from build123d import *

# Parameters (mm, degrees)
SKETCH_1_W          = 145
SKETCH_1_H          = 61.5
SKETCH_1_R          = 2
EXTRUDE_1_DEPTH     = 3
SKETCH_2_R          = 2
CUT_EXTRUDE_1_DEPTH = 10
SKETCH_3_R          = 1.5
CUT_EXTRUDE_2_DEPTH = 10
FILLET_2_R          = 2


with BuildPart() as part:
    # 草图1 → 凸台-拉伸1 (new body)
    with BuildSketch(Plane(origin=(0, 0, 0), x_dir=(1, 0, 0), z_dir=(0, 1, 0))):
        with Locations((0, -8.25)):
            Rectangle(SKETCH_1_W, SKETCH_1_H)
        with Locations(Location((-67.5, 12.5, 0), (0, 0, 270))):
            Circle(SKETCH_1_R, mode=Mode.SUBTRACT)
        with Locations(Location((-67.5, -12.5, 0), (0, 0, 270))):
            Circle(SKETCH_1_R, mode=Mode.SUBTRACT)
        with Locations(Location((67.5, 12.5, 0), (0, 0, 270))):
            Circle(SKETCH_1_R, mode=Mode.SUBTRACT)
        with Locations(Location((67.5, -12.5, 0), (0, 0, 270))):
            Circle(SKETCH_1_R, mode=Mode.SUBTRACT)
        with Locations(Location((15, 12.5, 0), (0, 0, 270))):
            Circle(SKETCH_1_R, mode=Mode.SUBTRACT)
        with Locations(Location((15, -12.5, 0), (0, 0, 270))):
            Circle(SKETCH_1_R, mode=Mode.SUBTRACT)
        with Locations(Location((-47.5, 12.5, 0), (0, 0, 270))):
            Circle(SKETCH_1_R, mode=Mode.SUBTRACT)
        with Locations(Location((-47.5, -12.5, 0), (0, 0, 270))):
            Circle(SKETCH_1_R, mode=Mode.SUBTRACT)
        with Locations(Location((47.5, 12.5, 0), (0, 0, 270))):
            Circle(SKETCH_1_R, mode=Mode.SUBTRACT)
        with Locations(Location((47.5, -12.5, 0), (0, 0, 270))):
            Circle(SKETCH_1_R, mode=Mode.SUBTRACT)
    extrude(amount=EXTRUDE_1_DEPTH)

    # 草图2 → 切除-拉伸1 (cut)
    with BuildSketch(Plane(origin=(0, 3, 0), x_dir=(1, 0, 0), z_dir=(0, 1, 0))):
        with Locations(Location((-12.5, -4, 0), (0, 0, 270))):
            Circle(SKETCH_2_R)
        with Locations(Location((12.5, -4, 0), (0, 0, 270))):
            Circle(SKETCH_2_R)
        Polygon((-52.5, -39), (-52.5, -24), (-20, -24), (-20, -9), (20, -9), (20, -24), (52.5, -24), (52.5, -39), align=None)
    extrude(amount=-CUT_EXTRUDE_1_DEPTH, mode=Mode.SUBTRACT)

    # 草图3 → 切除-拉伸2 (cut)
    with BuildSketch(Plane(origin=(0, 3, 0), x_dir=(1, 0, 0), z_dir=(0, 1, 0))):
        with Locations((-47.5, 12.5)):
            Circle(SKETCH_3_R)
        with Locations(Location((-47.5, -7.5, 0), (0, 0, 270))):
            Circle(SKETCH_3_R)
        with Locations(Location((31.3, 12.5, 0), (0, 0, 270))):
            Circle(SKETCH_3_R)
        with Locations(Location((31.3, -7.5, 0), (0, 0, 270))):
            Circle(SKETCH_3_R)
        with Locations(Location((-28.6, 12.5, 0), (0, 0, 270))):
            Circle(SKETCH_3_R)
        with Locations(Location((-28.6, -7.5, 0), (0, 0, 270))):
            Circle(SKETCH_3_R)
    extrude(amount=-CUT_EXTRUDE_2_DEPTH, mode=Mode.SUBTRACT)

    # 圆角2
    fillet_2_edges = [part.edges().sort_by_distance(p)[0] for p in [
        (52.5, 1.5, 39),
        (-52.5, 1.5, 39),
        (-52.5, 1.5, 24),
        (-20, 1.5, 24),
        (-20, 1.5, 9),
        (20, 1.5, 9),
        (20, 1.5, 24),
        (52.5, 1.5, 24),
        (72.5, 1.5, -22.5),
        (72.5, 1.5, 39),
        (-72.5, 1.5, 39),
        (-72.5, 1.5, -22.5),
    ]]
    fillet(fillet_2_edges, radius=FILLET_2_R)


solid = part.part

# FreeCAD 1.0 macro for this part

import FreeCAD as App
import Part
import Sketcher

V = App.Vector


def edges_at(feature, points):
    """Names of the edges that pass closest to the given points."""
    edges = feature.Shape.Edges
    near = lambda p: min(range(len(edges)), key=lambda i: edges[i].distToShape(Part.Vertex(*p))[0])
    return sorted({f"Edge{near(p) + 1}" for p in points})


def add_polygon(sketch, points):
    """Adds a closed chain of lines whose ends are joined by coincident constraints."""
    first, n = sketch.GeometryCount, len(points)
    for a, b in zip(points, points[1:] + points[:1]):
        sketch.addGeometry(Part.LineSegment(App.Vector(*a, 0), App.Vector(*b, 0)), False)
    for i in range(n):
        sketch.addConstraint(Sketcher.Constraint("Coincident", first + i, 2, first + (i + 1) % n, 1))

doc = App.newDocument("Part")
body = doc.addObject("PartDesign::Body", "Body")

sketch1 = body.newObject("Sketcher::SketchObject", "Sketch")
sketch1.AttachmentSupport = (doc.getObject("XZ_Plane"), [""])
sketch1.MapMode = "FlatFace"
add_polygon(sketch1, [(-72.5, -22.5), (-72.5, 39), (72.5, 39), (72.5, -22.5)])
sketch1.addGeometry(Part.Circle(V(-67.5, 12.5, 0), V(0, 0, 1), 2), False)
sketch1.addGeometry(Part.Circle(V(-47.5, 12.5, 0), V(0, 0, 1), 2), False)
sketch1.addGeometry(Part.Circle(V(15, 12.5, 0), V(0, 0, 1), 2), False)
sketch1.addGeometry(Part.Circle(V(47.5, 12.5, 0), V(0, 0, 1), 2), False)
sketch1.addGeometry(Part.Circle(V(67.5, 12.5, 0), V(0, 0, 1), 2), False)
sketch1.addGeometry(Part.Circle(V(-67.5, -12.5, 0), V(0, 0, 1), 2), False)
sketch1.addGeometry(Part.Circle(V(-47.5, -12.5, 0), V(0, 0, 1), 2), False)
sketch1.addGeometry(Part.Circle(V(15, -12.5, 0), V(0, 0, 1), 2), False)
sketch1.addGeometry(Part.Circle(V(47.5, -12.5, 0), V(0, 0, 1), 2), False)
sketch1.addGeometry(Part.Circle(V(67.5, -12.5, 0), V(0, 0, 1), 2), False)
sketch1.addConstraint(Sketcher.Constraint("Vertical", 0))
sketch1.addConstraint(Sketcher.Constraint("Horizontal", 1))
sketch1.addConstraint(Sketcher.Constraint("Vertical", 2))
sketch1.addConstraint(Sketcher.Constraint("Horizontal", 3))
sketch1.addConstraint(Sketcher.Constraint("Equal", 4, 5))
sketch1.addConstraint(Sketcher.Constraint("Equal", 5, 6))
sketch1.addConstraint(Sketcher.Constraint("Equal", 6, 7))
sketch1.addConstraint(Sketcher.Constraint("Equal", 7, 8))
sketch1.addConstraint(Sketcher.Constraint("Equal", 8, 9))
sketch1.addConstraint(Sketcher.Constraint("Equal", 9, 10))
sketch1.addConstraint(Sketcher.Constraint("Equal", 10, 11))
sketch1.addConstraint(Sketcher.Constraint("Equal", 11, 12))
sketch1.addConstraint(Sketcher.Constraint("Equal", 12, 13))
sketch1.addConstraint(Sketcher.Constraint("Symmetric", 8, 3, 9, 3, -1, 1))
sketch1.addConstraint(Sketcher.Constraint("Symmetric", 7, 3, 10, 3, -1, 1))
sketch1.addConstraint(Sketcher.Constraint("Symmetric", 5, 3, 12, 3, -1, 1))
sketch1.addConstraint(Sketcher.Constraint("Symmetric", 4, 3, 13, 3, -1, 1))
sketch1.addConstraint(Sketcher.Constraint("Symmetric", 5, 3, 7, 3, -2))
sketch1.addConstraint(Sketcher.Constraint("Symmetric", 4, 3, 8, 3, -2))
sketch1.addConstraint(Sketcher.Constraint("Symmetric", 6, 3, 11, 3, -1))
sketch1.addConstraint(Sketcher.Constraint("Horizontal", 4, 3, 5, 3))
sketch1.addConstraint(Sketcher.Constraint("Horizontal", 5, 3, 6, 3))
sketch1.addConstraint(Sketcher.Constraint("Diameter", 4, 4.0))
sketch1.addConstraint(Sketcher.Constraint("DistanceX", 1, 1, 1, 2, 145.0))
sketch1.addConstraint(Sketcher.Constraint("DistanceY", 0, 1, 0, 2, 61.5))
sketch1.addConstraint(Sketcher.Constraint("DistanceX", -1, 1, 6, 3, 15.0))
sketch1.addConstraint(Sketcher.Constraint("DistanceY", -1, 1, 0, 2, 39.0))
sketch1.addConstraint(Sketcher.Constraint("DistanceX", 4, 3, 5, 3, 20.0))
sketch1.addConstraint(Sketcher.Constraint("DistanceX", 5, 3, 7, 3, 95.0))
sketch1.addConstraint(Sketcher.Constraint("DistanceY", 9, 3, 4, 3, 25.0))
sketch1.addConstraint(Sketcher.Constraint("DistanceX", 0, 2, 4, 3, 5.0))
pad1 = body.newObject("PartDesign::Pad", "Pad")
pad1.Profile = sketch1
pad1.Length = 3
pad1.Reversed = True

sketch2 = body.newObject("Sketcher::SketchObject", "Sketch001")
sketch2.AttachmentSupport = (doc.getObject("XZ_Plane"), [""])
sketch2.MapMode = "FlatFace"
sketch2.AttachmentOffset = App.Placement(V(0, 0, -3), App.Rotation())
sketch2.addGeometry(Part.Circle(V(-12.5, 4, 0), V(0, 0, 1), 2), False)
sketch2.addGeometry(Part.Circle(V(12.5, 4, 0), V(0, 0, 1), 2), False)
add_polygon(sketch2, [(-52.5, 24), (-52.5, 39), (52.5, 39), (52.5, 24), (20, 24), (20, 9), (-20, 9), (-20, 24)])
sketch2.addConstraint(Sketcher.Constraint("Vertical", 2))
sketch2.addConstraint(Sketcher.Constraint("Horizontal", 3))
sketch2.addConstraint(Sketcher.Constraint("Vertical", 4))
sketch2.addConstraint(Sketcher.Constraint("Horizontal", 5))
sketch2.addConstraint(Sketcher.Constraint("Vertical", 6))
sketch2.addConstraint(Sketcher.Constraint("Horizontal", 7))
sketch2.addConstraint(Sketcher.Constraint("Vertical", 8))
sketch2.addConstraint(Sketcher.Constraint("Horizontal", 9))
sketch2.addConstraint(Sketcher.Constraint("Equal", 0, 1))
sketch2.addConstraint(Sketcher.Constraint("Symmetric", 0, 3, 1, 3, -2))
sketch2.addConstraint(Sketcher.Constraint("Symmetric", 5, 2, 8, 2, -2))
sketch2.addConstraint(Sketcher.Constraint("Equal", 5, 9))
sketch2.addConstraint(Sketcher.Constraint("Equal", 4, 6))
sketch2.addConstraint(Sketcher.Constraint("Diameter", 0, 4.0))
sketch2.addConstraint(Sketcher.Constraint("DistanceX", 3, 1, 3, 2, 105.0))
sketch2.addConstraint(Sketcher.Constraint("DistanceX", 7, 2, 7, 1, 40.0))
sketch2.addConstraint(Sketcher.Constraint("DistanceY", 2, 1, 2, 2, 15.0))
sketch2.addConstraint(Sketcher.Constraint("DistanceY", -1, 1, 0, 3, 4.0))
sketch2.addConstraint(Sketcher.Constraint("DistanceY", -1, 1, 2, 2, 39.0))
sketch2.addConstraint(Sketcher.Constraint("DistanceX", 0, 3, 1, 3, 25.0))
pocket1 = body.newObject("PartDesign::Pocket", "Pocket")
pocket1.Profile = sketch2
pocket1.Length = 10
pocket1.Reversed = True

sketch3 = body.newObject("Sketcher::SketchObject", "Sketch002")
sketch3.AttachmentSupport = (doc.getObject("XZ_Plane"), [""])
sketch3.MapMode = "FlatFace"
sketch3.AttachmentOffset = App.Placement(V(0, 0, -3), App.Rotation())
sketch3.addGeometry(Part.Circle(V(-47.5, -12.5, 0), V(0, 0, 1), 1.5), False)
sketch3.addGeometry(Part.Circle(V(-47.5, 7.5, 0), V(0, 0, 1), 1.5), False)
sketch3.addGeometry(Part.Circle(V(31.3, -12.5, 0), V(0, 0, 1), 1.5), False)
sketch3.addGeometry(Part.Circle(V(31.3, 7.5, 0), V(0, 0, 1), 1.5), False)
sketch3.addGeometry(Part.Circle(V(-28.6, -12.5, 0), V(0, 0, 1), 1.5), False)
sketch3.addGeometry(Part.Circle(V(-28.6, 7.5, 0), V(0, 0, 1), 1.5), False)
sketch3.addConstraint(Sketcher.Constraint("Equal", 0, 1))
sketch3.addConstraint(Sketcher.Constraint("Equal", 1, 2))
sketch3.addConstraint(Sketcher.Constraint("Equal", 2, 3))
sketch3.addConstraint(Sketcher.Constraint("Equal", 3, 4))
sketch3.addConstraint(Sketcher.Constraint("Equal", 4, 5))
sketch3.addConstraint(Sketcher.Constraint("Horizontal", 0, 3, 2, 3))
sketch3.addConstraint(Sketcher.Constraint("Horizontal", 1, 3, 3, 3))
sketch3.addConstraint(Sketcher.Constraint("Horizontal", 2, 3, 4, 3))
sketch3.addConstraint(Sketcher.Constraint("Horizontal", 3, 3, 5, 3))
sketch3.addConstraint(Sketcher.Constraint("Vertical", 0, 3, 1, 3))
sketch3.addConstraint(Sketcher.Constraint("Vertical", 2, 3, 3, 3))
sketch3.addConstraint(Sketcher.Constraint("Vertical", 4, 3, 5, 3))
sketch3.addConstraint(Sketcher.Constraint("Diameter", 0, 3.0))
sketch3.addConstraint(Sketcher.Constraint("DistanceY", 0, 3, 1, 3, 20.0))
sketch3.addConstraint(Sketcher.Constraint("DistanceX", 0, 3, -1, 1, 47.5))
sketch3.addConstraint(Sketcher.Constraint("DistanceY", 0, 3, -1, 1, 12.5))
sketch3.addConstraint(Sketcher.Constraint("DistanceX", -1, 1, 2, 3, 31.3))
sketch3.addConstraint(Sketcher.Constraint("DistanceX", 4, 3, -1, 1, 28.6))
pocket2 = body.newObject("PartDesign::Pocket", "Pocket001")
pocket2.Profile = sketch3
pocket2.Length = 10
pocket2.Reversed = True
doc.recompute()

fillet = body.newObject("PartDesign::Fillet", "Fillet")
fillet.Base = (pocket2, edges_at(pocket2, [
    (52.5, 1.5, 39),
    (-52.5, 1.5, 39),
    (-52.5, 1.5, 24),
    (-20, 1.5, 24),
    (-20, 1.5, 9),
    (20, 1.5, 9),
    (20, 1.5, 24),
    (52.5, 1.5, 24),
    (72.5, 1.5, -22.5),
    (72.5, 1.5, 39),
    (-72.5, 1.5, 39),
    (-72.5, 1.5, -22.5),
]))
fillet.Radius = 2

doc.recompute()
